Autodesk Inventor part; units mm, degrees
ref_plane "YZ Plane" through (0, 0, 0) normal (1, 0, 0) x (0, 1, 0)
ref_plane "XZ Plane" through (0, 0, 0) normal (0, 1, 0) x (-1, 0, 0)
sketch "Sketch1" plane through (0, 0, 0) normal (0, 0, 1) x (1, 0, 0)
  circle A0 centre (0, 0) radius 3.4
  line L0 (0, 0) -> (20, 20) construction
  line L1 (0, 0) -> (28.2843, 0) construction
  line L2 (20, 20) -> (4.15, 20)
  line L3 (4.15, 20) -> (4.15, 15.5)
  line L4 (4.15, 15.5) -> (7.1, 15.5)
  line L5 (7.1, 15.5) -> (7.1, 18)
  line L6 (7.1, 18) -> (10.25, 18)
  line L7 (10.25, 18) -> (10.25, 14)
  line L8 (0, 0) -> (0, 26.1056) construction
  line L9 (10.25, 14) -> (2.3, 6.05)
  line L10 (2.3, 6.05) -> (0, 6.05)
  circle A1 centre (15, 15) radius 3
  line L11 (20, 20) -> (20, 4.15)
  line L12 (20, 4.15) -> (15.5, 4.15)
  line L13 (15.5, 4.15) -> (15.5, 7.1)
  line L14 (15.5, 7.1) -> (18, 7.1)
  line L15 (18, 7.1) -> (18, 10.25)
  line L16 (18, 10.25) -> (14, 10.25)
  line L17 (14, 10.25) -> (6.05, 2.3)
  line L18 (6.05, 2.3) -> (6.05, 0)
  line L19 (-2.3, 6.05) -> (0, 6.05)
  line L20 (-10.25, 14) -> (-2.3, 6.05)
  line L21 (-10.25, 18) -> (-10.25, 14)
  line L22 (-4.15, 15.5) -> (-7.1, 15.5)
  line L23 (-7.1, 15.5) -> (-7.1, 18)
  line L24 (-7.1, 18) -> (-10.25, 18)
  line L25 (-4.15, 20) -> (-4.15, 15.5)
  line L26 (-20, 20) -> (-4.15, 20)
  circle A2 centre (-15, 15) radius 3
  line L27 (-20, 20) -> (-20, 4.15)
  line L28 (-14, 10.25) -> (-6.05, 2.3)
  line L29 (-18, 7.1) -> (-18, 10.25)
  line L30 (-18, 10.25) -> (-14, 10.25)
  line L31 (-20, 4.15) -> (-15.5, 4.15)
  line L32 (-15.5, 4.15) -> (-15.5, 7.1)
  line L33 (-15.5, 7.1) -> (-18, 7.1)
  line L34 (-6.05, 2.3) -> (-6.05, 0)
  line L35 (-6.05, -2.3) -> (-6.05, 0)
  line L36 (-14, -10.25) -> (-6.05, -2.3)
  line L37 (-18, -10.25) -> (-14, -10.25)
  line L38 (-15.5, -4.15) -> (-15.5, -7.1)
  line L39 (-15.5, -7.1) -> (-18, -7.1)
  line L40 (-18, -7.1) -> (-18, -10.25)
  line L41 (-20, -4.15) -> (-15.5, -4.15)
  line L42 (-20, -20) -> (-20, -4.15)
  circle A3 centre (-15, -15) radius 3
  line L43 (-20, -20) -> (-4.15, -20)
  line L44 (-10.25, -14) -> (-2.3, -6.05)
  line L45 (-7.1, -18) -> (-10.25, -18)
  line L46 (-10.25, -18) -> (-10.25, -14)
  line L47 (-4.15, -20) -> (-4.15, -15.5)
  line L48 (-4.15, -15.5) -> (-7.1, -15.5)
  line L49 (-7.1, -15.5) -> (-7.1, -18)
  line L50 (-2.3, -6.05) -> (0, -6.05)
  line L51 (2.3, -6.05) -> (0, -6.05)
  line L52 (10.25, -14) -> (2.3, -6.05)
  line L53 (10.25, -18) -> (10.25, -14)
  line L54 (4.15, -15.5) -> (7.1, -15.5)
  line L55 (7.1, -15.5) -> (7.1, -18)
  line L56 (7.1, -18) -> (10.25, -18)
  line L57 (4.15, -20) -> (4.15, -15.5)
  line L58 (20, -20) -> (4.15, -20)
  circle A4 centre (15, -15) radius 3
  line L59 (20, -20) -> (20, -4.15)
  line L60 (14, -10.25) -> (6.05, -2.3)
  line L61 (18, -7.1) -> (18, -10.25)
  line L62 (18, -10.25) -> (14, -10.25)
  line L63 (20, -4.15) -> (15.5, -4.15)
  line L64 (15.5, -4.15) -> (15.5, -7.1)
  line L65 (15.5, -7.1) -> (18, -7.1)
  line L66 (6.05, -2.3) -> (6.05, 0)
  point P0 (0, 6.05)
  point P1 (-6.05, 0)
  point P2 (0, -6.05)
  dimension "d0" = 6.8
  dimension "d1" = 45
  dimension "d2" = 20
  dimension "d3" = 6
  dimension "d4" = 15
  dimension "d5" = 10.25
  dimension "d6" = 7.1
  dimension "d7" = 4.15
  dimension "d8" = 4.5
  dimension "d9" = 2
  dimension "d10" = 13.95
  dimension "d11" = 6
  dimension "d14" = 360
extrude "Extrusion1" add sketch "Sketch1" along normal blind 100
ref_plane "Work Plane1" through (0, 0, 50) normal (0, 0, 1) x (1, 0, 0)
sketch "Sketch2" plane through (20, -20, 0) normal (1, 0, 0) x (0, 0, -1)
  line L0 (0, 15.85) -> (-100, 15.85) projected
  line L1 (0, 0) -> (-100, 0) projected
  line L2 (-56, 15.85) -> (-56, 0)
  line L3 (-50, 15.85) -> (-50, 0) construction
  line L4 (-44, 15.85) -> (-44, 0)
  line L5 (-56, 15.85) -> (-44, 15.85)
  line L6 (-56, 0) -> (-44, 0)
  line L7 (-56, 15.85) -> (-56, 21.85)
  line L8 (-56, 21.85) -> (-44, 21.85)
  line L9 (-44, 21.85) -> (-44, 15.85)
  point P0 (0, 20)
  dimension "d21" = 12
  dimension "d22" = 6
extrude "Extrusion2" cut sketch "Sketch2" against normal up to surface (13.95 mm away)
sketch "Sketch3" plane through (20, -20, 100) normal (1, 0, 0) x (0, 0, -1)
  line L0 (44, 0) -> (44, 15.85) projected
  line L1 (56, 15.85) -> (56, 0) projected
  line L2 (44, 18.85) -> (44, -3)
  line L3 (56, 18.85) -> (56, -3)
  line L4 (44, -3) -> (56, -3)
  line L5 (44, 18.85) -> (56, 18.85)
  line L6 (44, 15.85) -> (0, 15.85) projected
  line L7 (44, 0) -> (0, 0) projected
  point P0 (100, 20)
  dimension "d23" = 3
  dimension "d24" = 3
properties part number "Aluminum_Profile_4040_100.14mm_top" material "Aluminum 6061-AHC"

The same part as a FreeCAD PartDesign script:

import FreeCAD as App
import Part
import Sketcher
from FreeCAD import Vector

doc = App.newDocument("Part")
body = doc.addObject("PartDesign::Body", "Body")

# Sketch on XY plane
sketch1 = body.newObject("Sketcher::SketchObject", "Sketch")
sketch1.AttachmentSupport = (doc.getObject("XY_Plane"), [""])
sketch1.MapMode = "FlatFace"
sketch1.addGeometry([
    Part.LineSegment(Vector(20, 4.2, 0), Vector(20, 20, 0)),  # 0
    Part.LineSegment(Vector(20, 20, 0), Vector(4.2, 20, 0)),  # 1
    Part.LineSegment(Vector(4.2, 20, 0), Vector(4.2, 15.5, 0)),  # 2
    Part.LineSegment(Vector(4.2, 15.5, 0), Vector(7.1, 15.5, 0)),  # 3
    Part.LineSegment(Vector(7.1, 15.5, 0), Vector(7.1, 18, 0)),  # 4
    Part.LineSegment(Vector(7.1, 18, 0), Vector(10.2, 18, 0)),  # 5
    Part.LineSegment(Vector(10.2, 18, 0), Vector(10.2, 14, 0)),  # 6
    Part.LineSegment(Vector(10.2, 14, 0), Vector(2.3, 6, 0)),  # 7
    Part.LineSegment(Vector(2.3, 6, 0), Vector(-2.3, 6, 0)),  # 8
    Part.LineSegment(Vector(-2.3, 6, 0), Vector(-10.2, 14, 0)),  # 9
    Part.LineSegment(Vector(-10.2, 14, 0), Vector(-10.2, 18, 0)),  # 10
    Part.LineSegment(Vector(-10.2, 18, 0), Vector(-7.1, 18, 0)),  # 11
    Part.LineSegment(Vector(-7.1, 18, 0), Vector(-7.1, 15.5, 0)),  # 12
    Part.LineSegment(Vector(-7.1, 15.5, 0), Vector(-4.2, 15.5, 0)),  # 13
    Part.LineSegment(Vector(-4.2, 15.5, 0), Vector(-4.2, 20, 0)),  # 14
    Part.LineSegment(Vector(-4.2, 20, 0), Vector(-20, 20, 0)),  # 15
    Part.LineSegment(Vector(-20, 20, 0), Vector(-20, 4.2, 0)),  # 16
    Part.LineSegment(Vector(-20, 4.2, 0), Vector(-15.5, 4.2, 0)),  # 17
    Part.LineSegment(Vector(-15.5, 4.2, 0), Vector(-15.5, 7.1, 0)),  # 18
    Part.LineSegment(Vector(-15.5, 7.1, 0), Vector(-18, 7.1, 0)),  # 19
    Part.LineSegment(Vector(-18, 7.1, 0), Vector(-18, 10.2, 0)),  # 20
    Part.LineSegment(Vector(-18, 10.2, 0), Vector(-14, 10.2, 0)),  # 21
    Part.LineSegment(Vector(-14, 10.2, 0), Vector(-6, 2.3, 0)),  # 22
    Part.LineSegment(Vector(-6, 2.3, 0), Vector(-6, -2.3, 0)),  # 23
    Part.LineSegment(Vector(-6, -2.3, 0), Vector(-14, -10.2, 0)),  # 24
    Part.LineSegment(Vector(-14, -10.2, 0), Vector(-18, -10.2, 0)),  # 25
    Part.LineSegment(Vector(-18, -10.2, 0), Vector(-18, -7.1, 0)),  # 26
    Part.LineSegment(Vector(-18, -7.1, 0), Vector(-15.5, -7.1, 0)),  # 27
    Part.LineSegment(Vector(-15.5, -7.1, 0), Vector(-15.5, -4.2, 0)),  # 28
    Part.LineSegment(Vector(-15.5, -4.2, 0), Vector(-20, -4.2, 0)),  # 29
    Part.LineSegment(Vector(-20, -4.2, 0), Vector(-20, -20, 0)),  # 30
    Part.LineSegment(Vector(-20, -20, 0), Vector(-4.2, -20, 0)),  # 31
    Part.LineSegment(Vector(-4.2, -20, 0), Vector(-4.2, -15.5, 0)),  # 32
    Part.LineSegment(Vector(-4.2, -15.5, 0), Vector(-7.1, -15.5, 0)),  # 33
    Part.LineSegment(Vector(-7.1, -15.5, 0), Vector(-7.1, -18, 0)),  # 34
    Part.LineSegment(Vector(-7.1, -18, 0), Vector(-10.2, -18, 0)),  # 35
    Part.LineSegment(Vector(-10.2, -18, 0), Vector(-10.2, -14, 0)),  # 36
    Part.LineSegment(Vector(-10.2, -14, 0), Vector(-2.3, -6, 0)),  # 37
    Part.LineSegment(Vector(-2.3, -6, 0), Vector(2.3, -6, 0)),  # 38
    Part.LineSegment(Vector(2.3, -6, 0), Vector(10.2, -14, 0)),  # 39
    Part.LineSegment(Vector(10.2, -14, 0), Vector(10.2, -18, 0)),  # 40
    Part.LineSegment(Vector(10.2, -18, 0), Vector(7.1, -18, 0)),  # 41
    Part.LineSegment(Vector(7.1, -18, 0), Vector(7.1, -15.5, 0)),  # 42
    Part.LineSegment(Vector(7.1, -15.5, 0), Vector(4.2, -15.5, 0)),  # 43
    Part.LineSegment(Vector(4.2, -15.5, 0), Vector(4.2, -20, 0)),  # 44
    Part.LineSegment(Vector(4.2, -20, 0), Vector(20, -20, 0)),  # 45
    Part.LineSegment(Vector(20, -20, 0), Vector(20, -4.2, 0)),  # 46
    Part.LineSegment(Vector(20, -4.2, 0), Vector(15.5, -4.2, 0)),  # 47
    Part.LineSegment(Vector(15.5, -4.2, 0), Vector(15.5, -7.1, 0)),  # 48
    Part.LineSegment(Vector(15.5, -7.1, 0), Vector(18, -7.1, 0)),  # 49
    Part.LineSegment(Vector(18, -7.1, 0), Vector(18, -10.2, 0)),  # 50
    Part.LineSegment(Vector(18, -10.2, 0), Vector(14, -10.2, 0)),  # 51
    Part.LineSegment(Vector(14, -10.2, 0), Vector(6, -2.3, 0)),  # 52
    Part.LineSegment(Vector(6, -2.3, 0), Vector(6, 2.3, 0)),  # 53
    Part.LineSegment(Vector(6, 2.3, 0), Vector(14, 10.2, 0)),  # 54
    Part.LineSegment(Vector(14, 10.2, 0), Vector(18, 10.2, 0)),  # 55
    Part.LineSegment(Vector(18, 10.2, 0), Vector(18, 7.1, 0)),  # 56
    Part.LineSegment(Vector(18, 7.1, 0), Vector(15.5, 7.1, 0)),  # 57
    Part.LineSegment(Vector(15.5, 7.1, 0), Vector(15.5, 4.2, 0)),  # 58
    Part.LineSegment(Vector(15.5, 4.2, 0), Vector(20, 4.2, 0)),  # 59
    Part.Circle(Vector(-15, -15, 0), Vector(0, 0, 1), 3),  # 60
    Part.Circle(Vector(15, -15, 0), Vector(0, 0, 1), 3),  # 61
    Part.Circle(Vector(-15, 15, 0), Vector(0, 0, 1), 3),  # 62
    Part.Circle(Vector(0, 0, 0), Vector(0, 0, 1), 3.4),  # 63
    Part.Circle(Vector(15, 15, 0), Vector(0, 0, 1), 3),  # 64
], False)
sketch1.addConstraint([
    Sketcher.Constraint("Coincident", 0, 2, 1, 1),
    Sketcher.Constraint("Coincident", 1, 2, 2, 1),
    Sketcher.Constraint("Coincident", 2, 2, 3, 1),
    Sketcher.Constraint("Coincident", 3, 2, 4, 1),
    Sketcher.Constraint("Coincident", 4, 2, 5, 1),
    Sketcher.Constraint("Coincident", 5, 2, 6, 1),
    Sketcher.Constraint("Coincident", 6, 2, 7, 1),
    Sketcher.Constraint("Coincident", 7, 2, 8, 1),
    Sketcher.Constraint("Coincident", 8, 2, 9, 1),
    Sketcher.Constraint("Coincident", 9, 2, 10, 1),
    Sketcher.Constraint("Coincident", 10, 2, 11, 1),
    Sketcher.Constraint("Coincident", 11, 2, 12, 1),
    Sketcher.Constraint("Coincident", 12, 2, 13, 1),
    Sketcher.Constraint("Coincident", 13, 2, 14, 1),
    Sketcher.Constraint("Coincident", 14, 2, 15, 1),
    Sketcher.Constraint("Coincident", 15, 2, 16, 1),
    Sketcher.Constraint("Coincident", 16, 2, 17, 1),
    Sketcher.Constraint("Coincident", 17, 2, 18, 1),
    Sketcher.Constraint("Coincident", 18, 2, 19, 1),
    Sketcher.Constraint("Coincident", 19, 2, 20, 1),
    Sketcher.Constraint("Coincident", 20, 2, 21, 1),
    Sketcher.Constraint("Coincident", 21, 2, 22, 1),
    Sketcher.Constraint("Coincident", 22, 2, 23, 1),
    Sketcher.Constraint("Coincident", 23, 2, 24, 1),
    Sketcher.Constraint("Coincident", 24, 2, 25, 1),
    Sketcher.Constraint("Coincident", 25, 2, 26, 1),
    Sketcher.Constraint("Coincident", 26, 2, 27, 1),
    Sketcher.Constraint("Coincident", 27, 2, 28, 1),
    Sketcher.Constraint("Coincident", 28, 2, 29, 1),
    Sketcher.Constraint("Coincident", 29, 2, 30, 1),
    Sketcher.Constraint("Coincident", 30, 2, 31, 1),
    Sketcher.Constraint("Coincident", 31, 2, 32, 1),
    Sketcher.Constraint("Coincident", 32, 2, 33, 1),
    Sketcher.Constraint("Coincident", 33, 2, 34, 1),
    Sketcher.Constraint("Coincident", 34, 2, 35, 1),
    Sketcher.Constraint("Coincident", 35, 2, 36, 1),
    Sketcher.Constraint("Coincident", 36, 2, 37, 1),
    Sketcher.Constraint("Coincident", 37, 2, 38, 1),
    Sketcher.Constraint("Coincident", 38, 2, 39, 1),
    Sketcher.Constraint("Coincident", 39, 2, 40, 1),
    Sketcher.Constraint("Coincident", 40, 2, 41, 1),
    Sketcher.Constraint("Coincident", 41, 2, 42, 1),
    Sketcher.Constraint("Coincident", 42, 2, 43, 1),
    Sketcher.Constraint("Coincident", 43, 2, 44, 1),
    Sketcher.Constraint("Coincident", 44, 2, 45, 1),
    Sketcher.Constraint("Coincident", 45, 2, 46, 1),
    Sketcher.Constraint("Coincident", 46, 2, 47, 1),
    Sketcher.Constraint("Coincident", 47, 2, 48, 1),
    Sketcher.Constraint("Coincident", 48, 2, 49, 1),
    Sketcher.Constraint("Coincident", 49, 2, 50, 1),
    Sketcher.Constraint("Coincident", 50, 2, 51, 1),
    Sketcher.Constraint("Coincident", 51, 2, 52, 1),
    Sketcher.Constraint("Coincident", 52, 2, 53, 1),
    Sketcher.Constraint("Coincident", 53, 2, 54, 1),
    Sketcher.Constraint("Coincident", 54, 2, 55, 1),
    Sketcher.Constraint("Coincident", 55, 2, 56, 1),
    Sketcher.Constraint("Coincident", 56, 2, 57, 1),
    Sketcher.Constraint("Coincident", 57, 2, 58, 1),
    Sketcher.Constraint("Coincident", 58, 2, 59, 1),
    Sketcher.Constraint("Coincident", 59, 2, 0, 1),
    Sketcher.Constraint("Vertical", 0),
    Sketcher.Constraint("Horizontal", 1),
    Sketcher.Constraint("Vertical", 2),
    Sketcher.Constraint("Horizontal", 3),
    Sketcher.Constraint("Vertical", 4),
    Sketcher.Constraint("Horizontal", 5),
    Sketcher.Constraint("Vertical", 6),
    Sketcher.Constraint("Horizontal", 8),
    Sketcher.Constraint("Vertical", 10),
    Sketcher.Constraint("Horizontal", 11),
    Sketcher.Constraint("Vertical", 12),
    Sketcher.Constraint("Horizontal", 13),
    Sketcher.Constraint("Vertical", 14),
    Sketcher.Constraint("Horizontal", 15),
    Sketcher.Constraint("Vertical", 16),
    Sketcher.Constraint("Horizontal", 17),
    Sketcher.Constraint("Vertical", 18),
    Sketcher.Constraint("Horizontal", 19),
    Sketcher.Constraint("Vertical", 20),
    Sketcher.Constraint("Horizontal", 21),
    Sketcher.Constraint("Vertical", 23),
    Sketcher.Constraint("Horizontal", 25),
    Sketcher.Constraint("Vertical", 26),
    Sketcher.Constraint("Horizontal", 27),
    Sketcher.Constraint("Vertical", 28),
    Sketcher.Constraint("Horizontal", 29),
    Sketcher.Constraint("Vertical", 30),
    Sketcher.Constraint("Horizontal", 31),
    Sketcher.Constraint("Vertical", 32),
    Sketcher.Constraint("Horizontal", 33),
    Sketcher.Constraint("Vertical", 34),
    Sketcher.Constraint("Horizontal", 35),
    Sketcher.Constraint("Vertical", 36),
    Sketcher.Constraint("Horizontal", 38),
    Sketcher.Constraint("Vertical", 40),
    Sketcher.Constraint("Horizontal", 41),
    Sketcher.Constraint("Vertical", 42),
    Sketcher.Constraint("Horizontal", 43),
    Sketcher.Constraint("Vertical", 44),
    Sketcher.Constraint("Horizontal", 45),
    Sketcher.Constraint("Vertical", 46),
    Sketcher.Constraint("Horizontal", 47),
    Sketcher.Constraint("Vertical", 48),
    Sketcher.Constraint("Horizontal", 49),
    Sketcher.Constraint("Vertical", 50),
    Sketcher.Constraint("Horizontal", 51),
    Sketcher.Constraint("Vertical", 53),
    Sketcher.Constraint("Horizontal", 55),
    Sketcher.Constraint("Vertical", 56),
    Sketcher.Constraint("Horizontal", 57),
    Sketcher.Constraint("Vertical", 58),
    Sketcher.Constraint("Horizontal", 59),
    Sketcher.Constraint("Coincident", 63, 3, -1, 1),
    Sketcher.Constraint("Equal", 60, 61),
    Sketcher.Constraint("Equal", 61, 62),
    Sketcher.Constraint("Equal", 62, 64),
    Sketcher.Constraint("Symmetric", 61, 3, 62, 3, -1, 1),
    Sketcher.Constraint("Symmetric", 60, 3, 64, 3, -1, 1),
    Sketcher.Constraint("Symmetric", 0, 2, 30, 2, -1, 1),
    Sketcher.Constraint("Symmetric", 2, 2, 32, 2, -1, 1),
    Sketcher.Constraint("Symmetric", 4, 2, 34, 2, -1, 1),
    Sketcher.Constraint("Symmetric", 6, 2, 36, 2, -1, 1),
    Sketcher.Constraint("Symmetric", 7, 2, 37, 2, -1, 1),
    Sketcher.Constraint("Symmetric", 9, 2, 39, 2, -1, 1),
    Sketcher.Constraint("Symmetric", 11, 2, 41, 2, -1, 1),
    Sketcher.Constraint("Symmetric", 13, 2, 43, 2, -1, 1),
    Sketcher.Constraint("Symmetric", 15, 2, 45, 2, -1, 1),
    Sketcher.Constraint("Symmetric", 17, 2, 47, 2, -1, 1),
    Sketcher.Constraint("Symmetric", 19, 2, 49, 2, -1, 1),
    Sketcher.Constraint("Symmetric", 21, 2, 51, 2, -1, 1),
    Sketcher.Constraint("Symmetric", 22, 2, 52, 2, -1, 1),
    Sketcher.Constraint("Symmetric", 24, 2, 54, 2, -1, 1),
    Sketcher.Constraint("Symmetric", 26, 2, 56, 2, -1, 1),
    Sketcher.Constraint("Symmetric", 28, 2, 58, 2, -1, 1),
    Sketcher.Constraint("Symmetric", 60, 3, 61, 3, -2),
    Sketcher.Constraint("Symmetric", 6, 2, 9, 2, -2),
    Sketcher.Constraint("Symmetric", 4, 2, 11, 2, -2),
    Sketcher.Constraint("Symmetric", 2, 2, 13, 2, -2),
    Sketcher.Constraint("Symmetric", 0, 2, 15, 2, -2),
    Sketcher.Constraint("Symmetric", 28, 2, 47, 2, -2),
    Sketcher.Constraint("Symmetric", 26, 2, 49, 2, -2),
    Sketcher.Constraint("Symmetric", 24, 2, 51, 2, -2),
    Sketcher.Constraint("Perpendicular", 7, 9),
    Sketcher.Constraint("Parallel", 9, 22),
    Sketcher.Constraint("Perpendicular", 22, 24),
    Sketcher.Constraint("Perpendicular", 37, 39),
    Sketcher.Constraint("Perpendicular", 52, 54),
    Sketcher.Constraint("Horizontal", 23, 2, 52, 2),
    Sketcher.Constraint("Equal", 45, 0),
    Sketcher.Constraint("Equal", 59, 2),
    Sketcher.Constraint("Equal", 57, 4),
    Sketcher.Constraint("Equal", 55, 6),
    Sketcher.Constraint("Equal", 43, 18),
    Sketcher.Constraint("Equal", 41, 20),
    Sketcher.Constraint("Equal", 38, 23),
    Sketcher.Constraint("Equal", 9, 22),
    Sketcher.Constraint("Diameter", 60, 6.0),
    Sketcher.Constraint("Diameter", 63, 6.8),
    Sketcher.Constraint("DistanceX", 17, 1, 17, 2, 4.5),
    Sketcher.Constraint("DistanceX", 60, 3, -1, 1, 15.0),
    Sketcher.Constraint("DistanceY", 60, 3, -1, 1, 15.0),
    Sketcher.Constraint("DistanceX", -1, 1, 0, 2, 20.0),
    Sketcher.Constraint("DistanceX", -1, 1, 3, 2, 7.1),
    Sketcher.Constraint("DistanceX", 21, 1, 21, 2, 4.0),
    Sketcher.Constraint("DistanceX", -1, 1, 1, 2, 4.15),
    Sketcher.Constraint("DistanceX", -1, 1, 5, 2, 10.25),
    Sketcher.Constraint("DistanceX", 8, 2, 8, 1, 4.6),
    Sketcher.Constraint("DistanceX", 19, 2, 19, 1, 2.5),
])
pad1 = body.newObject("PartDesign::Pad", "Pad")
pad1.Profile = sketch1
pad1.Length = 100

# Sketch on YZ plane
sketch2 = body.newObject("Sketcher::SketchObject", "Sketch001")
sketch2.AttachmentSupport = (doc.getObject("YZ_Plane"), [""])
sketch2.MapMode = "FlatFace"
sketch2.AttachmentOffset = App.Placement(Vector(0, 0, 20), App.Rotation())
sketch2.addGeometry([
    Part.LineSegment(Vector(-20, 44, 0), Vector(2, 44, 0)),
    Part.LineSegment(Vector(2, 44, 0), Vector(2, 56, 0)),
    Part.LineSegment(Vector(2, 56, 0), Vector(-20, 56, 0)),
    Part.LineSegment(Vector(-20, 56, 0), Vector(-20, 44, 0)),
], False)
sketch2.addConstraint([
    Sketcher.Constraint("Coincident", 0, 2, 1, 1),
    Sketcher.Constraint("Coincident", 1, 2, 2, 1),
    Sketcher.Constraint("Coincident", 2, 2, 3, 1),
    Sketcher.Constraint("Coincident", 3, 2, 0, 1),
    Sketcher.Constraint("Horizontal", 0),
    Sketcher.Constraint("Vertical", 1),
    Sketcher.Constraint("Horizontal", 2),
    Sketcher.Constraint("Vertical", 3),
    Sketcher.Constraint("DistanceY", 1, 1, 1, 2, 12.0),
    Sketcher.Constraint("DistanceY", -1, 1, 0, 2, 44.0),
    Sketcher.Constraint("DistanceX", 2, 2, -1, 1, 20.0),
    Sketcher.Constraint("DistanceX", 0, 1, 0, 2, 21.85),
])
pocket1 = body.newObject("PartDesign::Pocket", "Pocket")
pocket1.Profile = sketch2
pocket1.Length = 13.95

doc.recompute()
